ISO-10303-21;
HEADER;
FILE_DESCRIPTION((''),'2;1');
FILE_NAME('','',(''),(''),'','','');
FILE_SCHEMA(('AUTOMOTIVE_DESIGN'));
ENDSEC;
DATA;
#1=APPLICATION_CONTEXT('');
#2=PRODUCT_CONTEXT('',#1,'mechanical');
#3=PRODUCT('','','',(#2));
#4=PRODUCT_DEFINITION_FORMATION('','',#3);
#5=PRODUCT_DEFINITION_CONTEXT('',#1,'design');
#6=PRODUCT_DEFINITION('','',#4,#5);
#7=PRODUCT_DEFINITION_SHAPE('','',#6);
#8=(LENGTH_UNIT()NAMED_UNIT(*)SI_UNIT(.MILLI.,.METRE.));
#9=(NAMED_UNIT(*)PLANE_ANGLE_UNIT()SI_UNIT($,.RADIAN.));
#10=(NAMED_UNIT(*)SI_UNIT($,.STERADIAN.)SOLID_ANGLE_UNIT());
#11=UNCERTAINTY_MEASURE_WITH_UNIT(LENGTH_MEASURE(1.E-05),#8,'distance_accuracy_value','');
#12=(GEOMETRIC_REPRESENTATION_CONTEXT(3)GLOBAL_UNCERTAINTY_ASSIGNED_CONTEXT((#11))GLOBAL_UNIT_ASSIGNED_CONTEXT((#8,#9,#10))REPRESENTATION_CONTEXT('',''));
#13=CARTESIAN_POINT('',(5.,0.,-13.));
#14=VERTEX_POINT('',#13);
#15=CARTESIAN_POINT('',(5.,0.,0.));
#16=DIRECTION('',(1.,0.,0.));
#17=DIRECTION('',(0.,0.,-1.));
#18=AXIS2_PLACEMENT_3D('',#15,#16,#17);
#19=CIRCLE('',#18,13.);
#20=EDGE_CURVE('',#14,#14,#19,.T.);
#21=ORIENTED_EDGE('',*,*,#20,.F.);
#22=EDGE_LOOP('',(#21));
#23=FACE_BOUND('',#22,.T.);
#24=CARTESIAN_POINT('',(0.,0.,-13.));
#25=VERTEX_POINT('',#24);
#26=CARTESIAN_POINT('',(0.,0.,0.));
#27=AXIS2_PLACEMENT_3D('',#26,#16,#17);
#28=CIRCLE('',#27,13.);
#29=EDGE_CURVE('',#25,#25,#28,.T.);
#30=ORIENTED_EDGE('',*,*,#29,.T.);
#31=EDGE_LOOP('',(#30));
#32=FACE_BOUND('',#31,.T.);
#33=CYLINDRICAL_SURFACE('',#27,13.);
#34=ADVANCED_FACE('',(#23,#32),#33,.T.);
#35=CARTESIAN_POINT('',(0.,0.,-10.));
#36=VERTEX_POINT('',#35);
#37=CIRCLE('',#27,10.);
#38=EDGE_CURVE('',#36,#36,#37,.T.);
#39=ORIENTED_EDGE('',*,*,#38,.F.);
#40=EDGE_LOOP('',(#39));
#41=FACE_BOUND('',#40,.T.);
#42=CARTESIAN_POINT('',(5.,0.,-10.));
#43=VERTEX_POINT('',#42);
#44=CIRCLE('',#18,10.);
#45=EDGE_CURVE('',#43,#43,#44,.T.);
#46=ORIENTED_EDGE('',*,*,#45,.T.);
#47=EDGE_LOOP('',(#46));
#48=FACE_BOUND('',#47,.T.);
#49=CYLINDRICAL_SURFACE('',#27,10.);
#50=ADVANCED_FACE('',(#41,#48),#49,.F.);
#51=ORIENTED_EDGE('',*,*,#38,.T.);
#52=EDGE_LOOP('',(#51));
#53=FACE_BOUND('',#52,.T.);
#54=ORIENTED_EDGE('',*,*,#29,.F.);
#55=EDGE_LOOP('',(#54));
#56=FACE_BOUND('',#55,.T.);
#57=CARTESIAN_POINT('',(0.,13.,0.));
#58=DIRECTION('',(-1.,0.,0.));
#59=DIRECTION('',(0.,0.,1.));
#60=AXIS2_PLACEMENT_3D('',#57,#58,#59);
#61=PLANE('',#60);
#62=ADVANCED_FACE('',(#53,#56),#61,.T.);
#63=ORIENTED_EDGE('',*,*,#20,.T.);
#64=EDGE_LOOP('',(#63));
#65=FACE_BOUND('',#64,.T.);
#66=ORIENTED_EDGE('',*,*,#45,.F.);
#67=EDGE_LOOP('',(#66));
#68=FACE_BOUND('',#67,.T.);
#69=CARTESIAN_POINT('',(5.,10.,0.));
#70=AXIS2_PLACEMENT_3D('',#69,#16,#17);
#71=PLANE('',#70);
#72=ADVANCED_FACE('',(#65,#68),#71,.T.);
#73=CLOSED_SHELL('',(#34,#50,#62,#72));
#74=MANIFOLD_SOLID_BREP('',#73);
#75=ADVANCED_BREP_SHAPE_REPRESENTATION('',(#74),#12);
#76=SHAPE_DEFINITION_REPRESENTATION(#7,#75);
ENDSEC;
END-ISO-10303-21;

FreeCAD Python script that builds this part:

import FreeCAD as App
import Part
import Sketcher

V = App.Vector
Q = App.Units.Quantity


def add_polygon(sketch, points):
    """Adds a closed chain of lines whose ends are joined by coincident constraints."""
    first, n = sketch.GeometryCount, len(points)
    for a, b in zip(points, points[1:] + points[:1]):
        sketch.addGeometry(Part.LineSegment(App.Vector(*a, 0), App.Vector(*b, 0)), False)
    for i in range(n):
        sketch.addConstraint(Sketcher.Constraint("Coincident", first + i, 2, first + (i + 1) % n, 1))

doc = App.newDocument("Part")
body = doc.addObject("PartDesign::Body", "Body")

# Sketch on XY plane
sketch1 = body.newObject("Sketcher::SketchObject", "Sketch")
sketch1.AttachmentSupport = (doc.getObject("XY_Plane"), [""])
sketch1.MapMode = "FlatFace"
add_polygon(sketch1, [(0, 13), (0, 10), (5, 10), (5, 13)])  # lines 0-3
sketch1.addConstraint([
    Sketcher.Constraint("Vertical", 0),
    Sketcher.Constraint("Horizontal", 1),
    Sketcher.Constraint("Vertical", 2),
    Sketcher.Constraint("Horizontal", 3),
    Sketcher.Constraint("PointOnObject", 0, 2, -2),
    Sketcher.Constraint("DistanceX", 1, 1, 1, 2, Q("5 mm")),
    Sketcher.Constraint("DistanceY", 0, 2, 0, 1, Q("3 mm")),
    Sketcher.Constraint("DistanceY", -1, 1, 0, 2, Q("10 mm")),
])
revolution = body.newObject("PartDesign::Revolution", "Revolution")
revolution.Profile = sketch1
revolution.ReferenceAxis = (sketch1, ["H_Axis"])
revolution.Angle = 360

doc.recompute()
